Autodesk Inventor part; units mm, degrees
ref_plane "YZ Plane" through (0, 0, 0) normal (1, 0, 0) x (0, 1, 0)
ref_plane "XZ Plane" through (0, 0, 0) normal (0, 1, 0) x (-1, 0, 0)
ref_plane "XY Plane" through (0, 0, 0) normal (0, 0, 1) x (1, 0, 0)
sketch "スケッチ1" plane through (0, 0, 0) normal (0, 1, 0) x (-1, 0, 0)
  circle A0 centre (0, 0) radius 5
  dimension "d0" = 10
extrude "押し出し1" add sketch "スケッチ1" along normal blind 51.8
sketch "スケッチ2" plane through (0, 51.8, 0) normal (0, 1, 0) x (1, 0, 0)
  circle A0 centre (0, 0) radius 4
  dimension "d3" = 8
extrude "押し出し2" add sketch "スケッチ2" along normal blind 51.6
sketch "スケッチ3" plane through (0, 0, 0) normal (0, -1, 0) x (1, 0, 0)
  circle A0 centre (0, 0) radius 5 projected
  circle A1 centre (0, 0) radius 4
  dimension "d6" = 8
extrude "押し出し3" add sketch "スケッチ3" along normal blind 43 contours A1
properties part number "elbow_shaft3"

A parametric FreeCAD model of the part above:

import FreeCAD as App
import Part
import Sketcher
Q = App.Units.Quantity

doc = App.newDocument("Part")
body = doc.addObject("PartDesign::Body", "Body")

# Sketch on XZ plane
sketch1 = doc.addObject("Sketcher::SketchObject", "Sketch")
body.addObject(sketch1)
sketch1.AttachmentSupport = (doc.XZ_Plane, [""])
sketch1.MapMode = "FlatFace"
sketch1.addGeometry(Part.Circle(App.Vector(0, 0, 0), App.Vector(0, 0, 1), 5), False)
sketch1.addConstraint(Sketcher.Constraint("Coincident", 0, 3, -1, 1))
sketch1.addConstraint(Sketcher.Constraint("Diameter", 0, Q("10 mm")))
pad1 = doc.addObject("PartDesign::Pad", "Pad")
body.addObject(pad1)
pad1.Profile = sketch1
pad1.Length = 51.8
pad1.Reversed = True

# Sketch on XZ plane
sketch2 = doc.addObject("Sketcher::SketchObject", "Sketch001")
body.addObject(sketch2)
sketch2.AttachmentSupport = (doc.XZ_Plane, [""])
sketch2.MapMode = "FlatFace"
sketch2.AttachmentOffset = App.Placement(App.Vector(0, 0, -51.8), App.Rotation())
sketch2.addGeometry(Part.Circle(App.Vector(0, 0, 0), App.Vector(0, 0, 1), 4), False)
sketch2.addConstraint(Sketcher.Constraint("Coincident", 0, 3, -1, 1))
sketch2.addConstraint(Sketcher.Constraint("Diameter", 0, Q("8 mm")))
pad2 = doc.addObject("PartDesign::Pad", "Pad001")
body.addObject(pad2)
pad2.Profile = sketch2
pad2.Length = 51.6
pad2.Reversed = True

# Sketch on XZ plane
sketch3 = doc.addObject("Sketcher::SketchObject", "Sketch002")
body.addObject(sketch3)
sketch3.AttachmentSupport = (doc.XZ_Plane, [""])
sketch3.MapMode = "FlatFace"
sketch3.addGeometry(Part.Circle(App.Vector(0, 0, 0), App.Vector(0, 0, 1), 4), False)
sketch3.addConstraint(Sketcher.Constraint("Coincident", 0, 3, -1, 1))
sketch3.addConstraint(Sketcher.Constraint("Diameter", 0, Q("8 mm")))
pad3 = doc.addObject("PartDesign::Pad", "Pad002")
body.addObject(pad3)
pad3.Profile = sketch3
pad3.Length = 43

doc.recompute()
